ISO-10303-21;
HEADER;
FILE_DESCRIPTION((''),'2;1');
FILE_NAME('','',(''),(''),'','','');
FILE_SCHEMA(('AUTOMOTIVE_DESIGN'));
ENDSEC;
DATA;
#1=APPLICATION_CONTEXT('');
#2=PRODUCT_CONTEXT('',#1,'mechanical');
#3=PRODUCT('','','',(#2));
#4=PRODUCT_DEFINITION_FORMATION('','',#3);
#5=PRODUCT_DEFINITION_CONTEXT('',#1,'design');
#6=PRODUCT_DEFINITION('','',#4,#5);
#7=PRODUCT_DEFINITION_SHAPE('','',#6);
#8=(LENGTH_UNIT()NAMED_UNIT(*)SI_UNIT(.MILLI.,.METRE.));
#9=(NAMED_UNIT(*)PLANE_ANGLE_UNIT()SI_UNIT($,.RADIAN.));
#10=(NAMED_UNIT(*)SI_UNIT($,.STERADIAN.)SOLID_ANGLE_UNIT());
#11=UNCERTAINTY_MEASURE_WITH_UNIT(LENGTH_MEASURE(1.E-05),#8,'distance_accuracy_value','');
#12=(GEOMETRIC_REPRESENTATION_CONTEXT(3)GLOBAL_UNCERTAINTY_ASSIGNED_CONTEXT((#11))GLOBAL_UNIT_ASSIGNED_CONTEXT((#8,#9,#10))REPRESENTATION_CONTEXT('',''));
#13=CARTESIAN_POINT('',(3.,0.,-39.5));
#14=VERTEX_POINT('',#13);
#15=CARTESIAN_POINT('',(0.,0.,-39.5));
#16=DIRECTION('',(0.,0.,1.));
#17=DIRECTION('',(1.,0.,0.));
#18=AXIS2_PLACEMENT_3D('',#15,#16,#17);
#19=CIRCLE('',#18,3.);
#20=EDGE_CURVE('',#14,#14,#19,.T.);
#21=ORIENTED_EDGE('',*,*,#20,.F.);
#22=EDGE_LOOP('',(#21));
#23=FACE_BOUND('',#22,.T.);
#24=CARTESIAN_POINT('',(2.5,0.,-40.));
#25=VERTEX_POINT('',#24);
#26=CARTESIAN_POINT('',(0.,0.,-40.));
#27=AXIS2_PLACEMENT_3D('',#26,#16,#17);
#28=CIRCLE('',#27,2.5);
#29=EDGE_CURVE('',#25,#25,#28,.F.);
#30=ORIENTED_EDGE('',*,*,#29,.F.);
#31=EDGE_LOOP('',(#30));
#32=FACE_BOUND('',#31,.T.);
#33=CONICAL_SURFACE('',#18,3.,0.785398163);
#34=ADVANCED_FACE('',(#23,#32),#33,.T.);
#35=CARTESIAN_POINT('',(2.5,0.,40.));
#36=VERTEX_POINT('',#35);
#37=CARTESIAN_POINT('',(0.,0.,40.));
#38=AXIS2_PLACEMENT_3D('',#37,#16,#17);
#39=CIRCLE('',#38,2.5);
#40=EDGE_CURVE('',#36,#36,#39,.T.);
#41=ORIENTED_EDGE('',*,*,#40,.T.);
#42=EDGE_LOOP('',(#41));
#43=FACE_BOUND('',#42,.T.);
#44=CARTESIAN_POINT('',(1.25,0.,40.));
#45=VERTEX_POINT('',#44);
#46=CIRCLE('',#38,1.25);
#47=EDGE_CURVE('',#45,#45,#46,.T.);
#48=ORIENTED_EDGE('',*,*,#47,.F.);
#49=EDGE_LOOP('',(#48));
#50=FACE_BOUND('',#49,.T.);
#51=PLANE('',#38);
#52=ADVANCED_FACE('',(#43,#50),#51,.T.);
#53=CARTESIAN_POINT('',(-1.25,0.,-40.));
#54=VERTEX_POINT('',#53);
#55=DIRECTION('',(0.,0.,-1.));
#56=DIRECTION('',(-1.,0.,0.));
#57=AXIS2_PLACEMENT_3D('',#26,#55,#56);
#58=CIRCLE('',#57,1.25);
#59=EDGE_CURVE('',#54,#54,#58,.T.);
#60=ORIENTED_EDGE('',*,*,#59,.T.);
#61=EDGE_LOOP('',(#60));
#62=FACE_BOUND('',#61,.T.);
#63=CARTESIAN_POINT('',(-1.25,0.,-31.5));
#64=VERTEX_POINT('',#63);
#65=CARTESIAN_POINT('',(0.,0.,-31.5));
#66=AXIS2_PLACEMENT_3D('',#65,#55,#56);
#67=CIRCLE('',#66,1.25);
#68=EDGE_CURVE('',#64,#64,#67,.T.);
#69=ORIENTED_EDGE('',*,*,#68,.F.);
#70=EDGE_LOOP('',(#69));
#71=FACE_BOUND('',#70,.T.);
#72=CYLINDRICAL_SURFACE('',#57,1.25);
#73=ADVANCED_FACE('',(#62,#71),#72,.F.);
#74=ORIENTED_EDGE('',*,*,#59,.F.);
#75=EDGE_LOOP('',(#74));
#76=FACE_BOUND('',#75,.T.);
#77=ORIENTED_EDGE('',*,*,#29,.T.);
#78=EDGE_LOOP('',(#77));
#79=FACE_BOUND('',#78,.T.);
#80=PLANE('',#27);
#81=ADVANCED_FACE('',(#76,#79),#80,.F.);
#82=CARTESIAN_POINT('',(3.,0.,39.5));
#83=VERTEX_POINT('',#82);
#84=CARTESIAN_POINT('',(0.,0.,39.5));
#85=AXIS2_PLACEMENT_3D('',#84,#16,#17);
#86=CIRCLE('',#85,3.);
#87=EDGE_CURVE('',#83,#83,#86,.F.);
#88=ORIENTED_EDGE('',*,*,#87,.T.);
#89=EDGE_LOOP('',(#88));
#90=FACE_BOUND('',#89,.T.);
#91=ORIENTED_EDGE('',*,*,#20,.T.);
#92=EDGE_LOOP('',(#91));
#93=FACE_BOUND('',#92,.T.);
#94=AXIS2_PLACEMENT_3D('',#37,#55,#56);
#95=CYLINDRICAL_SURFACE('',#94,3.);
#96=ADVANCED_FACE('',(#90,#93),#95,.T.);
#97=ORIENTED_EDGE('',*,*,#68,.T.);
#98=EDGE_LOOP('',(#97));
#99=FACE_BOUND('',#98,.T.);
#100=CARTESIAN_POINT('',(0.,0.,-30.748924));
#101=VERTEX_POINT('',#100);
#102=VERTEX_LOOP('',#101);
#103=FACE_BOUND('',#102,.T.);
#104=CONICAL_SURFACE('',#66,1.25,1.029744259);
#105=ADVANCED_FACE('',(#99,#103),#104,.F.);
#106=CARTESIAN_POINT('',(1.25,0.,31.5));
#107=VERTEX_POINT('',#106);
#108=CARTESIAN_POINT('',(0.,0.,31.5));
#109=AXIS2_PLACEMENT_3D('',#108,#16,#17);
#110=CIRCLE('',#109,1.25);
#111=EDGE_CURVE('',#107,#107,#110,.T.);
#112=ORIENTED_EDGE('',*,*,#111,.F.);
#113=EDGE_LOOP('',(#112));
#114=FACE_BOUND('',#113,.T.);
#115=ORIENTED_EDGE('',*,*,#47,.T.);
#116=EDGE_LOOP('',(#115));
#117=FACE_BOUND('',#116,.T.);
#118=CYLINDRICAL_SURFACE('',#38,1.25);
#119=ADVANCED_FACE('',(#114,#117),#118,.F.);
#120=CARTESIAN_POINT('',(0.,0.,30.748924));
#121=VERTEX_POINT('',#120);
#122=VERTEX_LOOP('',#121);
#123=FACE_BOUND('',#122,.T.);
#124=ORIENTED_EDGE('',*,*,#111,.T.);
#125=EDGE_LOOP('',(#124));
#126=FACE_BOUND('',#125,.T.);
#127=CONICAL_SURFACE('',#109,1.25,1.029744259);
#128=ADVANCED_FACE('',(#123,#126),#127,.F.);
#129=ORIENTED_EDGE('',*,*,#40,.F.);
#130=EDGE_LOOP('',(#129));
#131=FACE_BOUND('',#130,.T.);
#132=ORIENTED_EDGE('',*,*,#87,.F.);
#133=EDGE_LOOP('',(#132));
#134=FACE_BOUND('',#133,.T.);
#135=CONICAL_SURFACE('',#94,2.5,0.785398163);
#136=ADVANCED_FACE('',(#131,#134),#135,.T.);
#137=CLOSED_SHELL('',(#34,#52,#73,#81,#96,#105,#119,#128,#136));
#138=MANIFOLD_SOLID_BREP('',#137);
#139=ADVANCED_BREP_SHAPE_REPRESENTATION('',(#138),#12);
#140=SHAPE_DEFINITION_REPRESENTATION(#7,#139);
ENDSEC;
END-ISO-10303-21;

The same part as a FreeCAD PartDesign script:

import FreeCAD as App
import Part
import Sketcher
Q = App.Units.Quantity


def edges_at(feature, points):
    """Names of the edges that pass closest to the given points."""
    edges = feature.Shape.Edges
    near = lambda p: min(range(len(edges)), key=lambda i: edges[i].distToShape(Part.Vertex(*p))[0])
    return sorted({f"Edge{near(p) + 1}" for p in points})


def add_polygon(sketch, points):
    """Adds a closed chain of lines whose ends are joined by coincident constraints."""
    first, n = sketch.GeometryCount, len(points)
    for a, b in zip(points, points[1:] + points[:1]):
        sketch.addGeometry(Part.LineSegment(App.Vector(*a, 0), App.Vector(*b, 0)), False)
    for i in range(n):
        sketch.addConstraint(Sketcher.Constraint("Coincident", first + i, 2, first + (i + 1) % n, 1))

doc = App.newDocument("Part")
body = doc.addObject("PartDesign::Body", "Body")

# Sketch on XY plane
sketch1 = body.newObject("Sketcher::SketchObject", "Sketch")
sketch1.AttachmentSupport = (doc.getObject("XY_Plane"), [""])
sketch1.MapMode = "FlatFace"
sketch1.addGeometry(Part.Circle(App.Vector(0, 0, 0), App.Vector(0, 0, 1), 3), False)
sketch1.addConstraint(Sketcher.Constraint("Coincident", 0, 3, -1, 1))
sketch1.addConstraint(Sketcher.Constraint("Diameter", 0, Q("6 mm")))
pad1 = body.newObject("PartDesign::Pad", "Pad")
pad1.Profile = sketch1
pad1.Length = 80
pad1.Midplane = True
doc.recompute()

chamfer = body.newObject("PartDesign::Chamfer", "Chamfer")
chamfer.Base = (pad1, edges_at(pad1, [(-3, 0, -40), (-3, 0, 40)]))
chamfer.Size = 0.5

# Sketch on YZ plane
sketch2 = body.newObject("Sketcher::SketchObject", "Sketch001")
sketch2.AttachmentSupport = (doc.getObject("YZ_Plane"), [""])
sketch2.MapMode = "FlatFace"
add_polygon(sketch2, [(0, 30.748924), (0, 40), (-1.25, 40), (-1.25, 31.5)])  # lines 0-3
sketch2.addConstraint(Sketcher.Constraint("Vertical", 0))
sketch2.addConstraint(Sketcher.Constraint("Horizontal", 1))
sketch2.addConstraint(Sketcher.Constraint("Vertical", 2))
sketch2.addConstraint(Sketcher.Constraint("PointOnObject", 0, 2, -2))
sketch2.addConstraint(Sketcher.Constraint("Angle", 3, Q("-31 deg")))
sketch2.addConstraint(Sketcher.Constraint("DistanceY", 2, 2, 2, 1, Q("8.5 mm")))
sketch2.addConstraint(Sketcher.Constraint("DistanceY", -1, 1, 0, 2, Q("40 mm")))
sketch2.addConstraint(Sketcher.Constraint("DistanceX", 1, 2, 1, 1, Q("1.25 mm")))
groove = body.newObject("PartDesign::Groove", "Groove")
groove.Profile = sketch2
groove.ReferenceAxis = (sketch2, ["V_Axis"])
groove.Angle = 360
doc.recompute()

mirrored = body.newObject("PartDesign::Mirrored", "Mirrored")
mirrored.Originals = [groove]
mirrored.MirrorPlane = (doc.getObject("XY_Plane"), [""])
body.Tip = mirrored

doc.recompute()
